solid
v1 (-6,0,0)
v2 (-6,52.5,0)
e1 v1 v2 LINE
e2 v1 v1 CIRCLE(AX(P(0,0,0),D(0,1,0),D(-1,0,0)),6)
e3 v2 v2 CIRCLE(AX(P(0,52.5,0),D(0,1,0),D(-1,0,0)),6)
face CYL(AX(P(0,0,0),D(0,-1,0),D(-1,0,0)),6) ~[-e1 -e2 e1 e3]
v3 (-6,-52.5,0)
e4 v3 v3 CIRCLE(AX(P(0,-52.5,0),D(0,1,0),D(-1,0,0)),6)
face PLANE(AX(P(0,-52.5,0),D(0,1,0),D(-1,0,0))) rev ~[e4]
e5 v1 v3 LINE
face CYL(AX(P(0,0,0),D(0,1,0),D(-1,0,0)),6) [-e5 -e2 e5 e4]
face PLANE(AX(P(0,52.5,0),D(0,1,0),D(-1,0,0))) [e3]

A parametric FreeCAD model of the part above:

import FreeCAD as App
import Part
import Sketcher
from FreeCAD import Vector
Q = App.Units.Quantity

doc = App.newDocument("Part")
body = doc.addObject("PartDesign::Body", "Body")

# Sketch on XZ plane
sketch1 = body.newObject("Sketcher::SketchObject", "Sketch")
sketch1.AttachmentSupport = (doc.getObject("XZ_Plane"), [""])
sketch1.MapMode = "FlatFace"
sketch1.addGeometry(Part.Circle(Vector(0, 0, 0), Vector(0, 0, 1), 6), False)
sketch1.addConstraint([
    Sketcher.Constraint("Coincident", 0, 3, -1, 1),
    Sketcher.Constraint("Diameter", 0, Q("12 mm")),
])
pad1 = body.newObject("PartDesign::Pad", "Pad")
pad1.Profile = sketch1
pad1.Length = 105
pad1.Midplane = True

doc.recompute()
